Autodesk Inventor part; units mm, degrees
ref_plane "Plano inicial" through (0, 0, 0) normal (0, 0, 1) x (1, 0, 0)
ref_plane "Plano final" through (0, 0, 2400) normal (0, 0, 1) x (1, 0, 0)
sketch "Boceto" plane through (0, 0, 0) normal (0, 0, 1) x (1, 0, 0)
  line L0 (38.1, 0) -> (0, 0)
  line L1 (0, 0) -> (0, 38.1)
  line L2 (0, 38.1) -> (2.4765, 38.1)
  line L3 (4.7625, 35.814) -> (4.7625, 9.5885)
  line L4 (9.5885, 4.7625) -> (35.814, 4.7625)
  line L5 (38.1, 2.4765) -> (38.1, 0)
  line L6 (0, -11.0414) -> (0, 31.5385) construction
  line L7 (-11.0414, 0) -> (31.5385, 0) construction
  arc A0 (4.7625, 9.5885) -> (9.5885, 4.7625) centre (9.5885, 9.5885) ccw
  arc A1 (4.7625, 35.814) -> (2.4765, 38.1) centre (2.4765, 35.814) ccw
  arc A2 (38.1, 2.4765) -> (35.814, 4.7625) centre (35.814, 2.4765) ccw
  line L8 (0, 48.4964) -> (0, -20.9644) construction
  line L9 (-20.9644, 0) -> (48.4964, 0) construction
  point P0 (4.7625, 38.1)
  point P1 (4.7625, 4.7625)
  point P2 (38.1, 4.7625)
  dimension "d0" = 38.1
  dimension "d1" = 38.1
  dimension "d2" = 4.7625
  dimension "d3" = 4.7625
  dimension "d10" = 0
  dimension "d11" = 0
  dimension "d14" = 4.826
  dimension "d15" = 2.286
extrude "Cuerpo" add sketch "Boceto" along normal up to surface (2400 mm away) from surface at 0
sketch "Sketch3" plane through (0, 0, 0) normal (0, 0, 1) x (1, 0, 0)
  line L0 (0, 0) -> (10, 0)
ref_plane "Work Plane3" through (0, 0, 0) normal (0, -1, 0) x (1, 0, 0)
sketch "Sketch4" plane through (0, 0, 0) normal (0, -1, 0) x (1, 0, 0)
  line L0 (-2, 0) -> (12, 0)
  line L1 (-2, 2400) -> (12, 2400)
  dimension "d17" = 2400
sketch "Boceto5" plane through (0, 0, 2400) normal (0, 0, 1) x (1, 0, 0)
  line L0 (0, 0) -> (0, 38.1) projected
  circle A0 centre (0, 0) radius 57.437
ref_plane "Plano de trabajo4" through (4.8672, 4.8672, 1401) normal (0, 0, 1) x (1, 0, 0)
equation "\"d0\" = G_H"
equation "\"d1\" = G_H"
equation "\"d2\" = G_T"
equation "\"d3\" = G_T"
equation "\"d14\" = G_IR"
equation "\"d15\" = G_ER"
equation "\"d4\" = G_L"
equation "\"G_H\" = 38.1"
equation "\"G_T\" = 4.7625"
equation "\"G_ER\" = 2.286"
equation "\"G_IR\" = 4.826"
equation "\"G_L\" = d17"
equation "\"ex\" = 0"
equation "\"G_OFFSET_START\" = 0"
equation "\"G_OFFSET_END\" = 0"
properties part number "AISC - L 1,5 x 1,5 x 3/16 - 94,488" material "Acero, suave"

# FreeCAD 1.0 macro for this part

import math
import FreeCAD as App
import Part
import Sketcher
from FreeCAD import Vector
Q = App.Units.Quantity

doc = App.newDocument("Part")
params = doc.addObject("Spreadsheet::Sheet", "Params")
for row, (alias, value) in enumerate([
    ("sketch1_radius", "0.09 in"),
    ("sketch1_radius2", "0.19 in"),
    ("sketch1_width", "1.5 in"),
    ("pad1_length", "94.488189 in"),
], start=1):
    params.set(f"A{row}", alias)
    params.set(f"B{row}", "=" + value)
    params.setAlias(f"B{row}", alias)

body = doc.addObject("PartDesign::Body", "Body")

sketch1 = doc.addObject("Sketcher::SketchObject", "Sketch")
body.addObject(sketch1)
sketch1.AttachmentSupport = (doc.XY_Plane, [""])
sketch1.MapMode = "FlatFace"
sketch1.addGeometry(Part.LineSegment(Vector(0, 0, 0), Vector(38.1, 0, 0)), False)
sketch1.addGeometry(Part.LineSegment(Vector(38.1, 0, 0), Vector(38.1, 2.5, 0)), False)
sketch1.addGeometry(Part.ArcOfCircle(Part.Circle(Vector(35.8, 2.5, 0), Vector(0, 0, 1), 2.3), math.radians(0), math.radians(90)), False)
sketch1.addGeometry(Part.LineSegment(Vector(35.8, 4.8, 0), Vector(9.6, 4.8, 0)), False)
sketch1.addGeometry(Part.ArcOfCircle(Part.Circle(Vector(9.6, 9.6, 0), Vector(0, 0, 1), 4.8), math.radians(180), math.radians(270)), False)
sketch1.addGeometry(Part.LineSegment(Vector(4.8, 9.6, 0), Vector(4.8, 35.8, 0)), False)
sketch1.addGeometry(Part.ArcOfCircle(Part.Circle(Vector(2.5, 35.8, 0), Vector(0, 0, 1), 2.3), math.radians(0), math.radians(90)), False)
sketch1.addGeometry(Part.LineSegment(Vector(2.5, 38.1, 0), Vector(0, 38.1, 0)), False)
sketch1.addGeometry(Part.LineSegment(Vector(0, 38.1, 0), Vector(0, 0, 0)), False)
sketch1.addConstraint(Sketcher.Constraint("Coincident", 0, 2, 1, 1))
sketch1.addConstraint(Sketcher.Constraint("Tangent", 1, 2, 2, 1))
sketch1.addConstraint(Sketcher.Constraint("Tangent", 2, 2, 3, 1))
sketch1.addConstraint(Sketcher.Constraint("Tangent", 3, 2, 4, 2))
sketch1.addConstraint(Sketcher.Constraint("Tangent", 4, 1, 5, 1))
sketch1.addConstraint(Sketcher.Constraint("Tangent", 5, 2, 6, 1))
sketch1.addConstraint(Sketcher.Constraint("Tangent", 6, 2, 7, 1))
sketch1.addConstraint(Sketcher.Constraint("Coincident", 7, 2, 8, 1))
sketch1.addConstraint(Sketcher.Constraint("Coincident", 8, 2, 0, 1))
sketch1.addConstraint(Sketcher.Constraint("Horizontal", 0))
sketch1.addConstraint(Sketcher.Constraint("Vertical", 1))
sketch1.addConstraint(Sketcher.Constraint("Horizontal", 3))
sketch1.addConstraint(Sketcher.Constraint("Vertical", 5))
sketch1.addConstraint(Sketcher.Constraint("Horizontal", 7))
sketch1.addConstraint(Sketcher.Constraint("Vertical", 8))
sketch1.addConstraint(Sketcher.Constraint("Coincident", 8, 2, -1, 1))
sketch1.addConstraint(Sketcher.Constraint("Equal", 2, 6))
sketch1.addConstraint(Sketcher.Constraint("Equal", 7, 1))
sketch1.addConstraint(Sketcher.Constraint("Equal", 3, 5))
sketch1.addConstraint(Sketcher.Constraint("Radius", 2, Q("0.09 in")))
sketch1.addConstraint(Sketcher.Constraint("Radius", 4, Q("0.19 in")))
sketch1.addConstraint(Sketcher.Constraint("DistanceX", 0, 1, 0, 2, Q("1.5 in")))
sketch1.addConstraint(Sketcher.Constraint("DistanceY", -1, 1, 2, 2, Q("0.1875 in")))
sketch1.setExpression("Constraints[19]", "Params.sketch1_radius")
sketch1.setExpression("Constraints[20]", "Params.sketch1_radius2")
sketch1.setExpression("Constraints[21]", "Params.sketch1_width")
pad1 = doc.addObject("PartDesign::Pad", "Pad")
body.addObject(pad1)
pad1.Profile = sketch1
pad1.setExpression("Length", "Params.pad1_length")

doc.recompute()
